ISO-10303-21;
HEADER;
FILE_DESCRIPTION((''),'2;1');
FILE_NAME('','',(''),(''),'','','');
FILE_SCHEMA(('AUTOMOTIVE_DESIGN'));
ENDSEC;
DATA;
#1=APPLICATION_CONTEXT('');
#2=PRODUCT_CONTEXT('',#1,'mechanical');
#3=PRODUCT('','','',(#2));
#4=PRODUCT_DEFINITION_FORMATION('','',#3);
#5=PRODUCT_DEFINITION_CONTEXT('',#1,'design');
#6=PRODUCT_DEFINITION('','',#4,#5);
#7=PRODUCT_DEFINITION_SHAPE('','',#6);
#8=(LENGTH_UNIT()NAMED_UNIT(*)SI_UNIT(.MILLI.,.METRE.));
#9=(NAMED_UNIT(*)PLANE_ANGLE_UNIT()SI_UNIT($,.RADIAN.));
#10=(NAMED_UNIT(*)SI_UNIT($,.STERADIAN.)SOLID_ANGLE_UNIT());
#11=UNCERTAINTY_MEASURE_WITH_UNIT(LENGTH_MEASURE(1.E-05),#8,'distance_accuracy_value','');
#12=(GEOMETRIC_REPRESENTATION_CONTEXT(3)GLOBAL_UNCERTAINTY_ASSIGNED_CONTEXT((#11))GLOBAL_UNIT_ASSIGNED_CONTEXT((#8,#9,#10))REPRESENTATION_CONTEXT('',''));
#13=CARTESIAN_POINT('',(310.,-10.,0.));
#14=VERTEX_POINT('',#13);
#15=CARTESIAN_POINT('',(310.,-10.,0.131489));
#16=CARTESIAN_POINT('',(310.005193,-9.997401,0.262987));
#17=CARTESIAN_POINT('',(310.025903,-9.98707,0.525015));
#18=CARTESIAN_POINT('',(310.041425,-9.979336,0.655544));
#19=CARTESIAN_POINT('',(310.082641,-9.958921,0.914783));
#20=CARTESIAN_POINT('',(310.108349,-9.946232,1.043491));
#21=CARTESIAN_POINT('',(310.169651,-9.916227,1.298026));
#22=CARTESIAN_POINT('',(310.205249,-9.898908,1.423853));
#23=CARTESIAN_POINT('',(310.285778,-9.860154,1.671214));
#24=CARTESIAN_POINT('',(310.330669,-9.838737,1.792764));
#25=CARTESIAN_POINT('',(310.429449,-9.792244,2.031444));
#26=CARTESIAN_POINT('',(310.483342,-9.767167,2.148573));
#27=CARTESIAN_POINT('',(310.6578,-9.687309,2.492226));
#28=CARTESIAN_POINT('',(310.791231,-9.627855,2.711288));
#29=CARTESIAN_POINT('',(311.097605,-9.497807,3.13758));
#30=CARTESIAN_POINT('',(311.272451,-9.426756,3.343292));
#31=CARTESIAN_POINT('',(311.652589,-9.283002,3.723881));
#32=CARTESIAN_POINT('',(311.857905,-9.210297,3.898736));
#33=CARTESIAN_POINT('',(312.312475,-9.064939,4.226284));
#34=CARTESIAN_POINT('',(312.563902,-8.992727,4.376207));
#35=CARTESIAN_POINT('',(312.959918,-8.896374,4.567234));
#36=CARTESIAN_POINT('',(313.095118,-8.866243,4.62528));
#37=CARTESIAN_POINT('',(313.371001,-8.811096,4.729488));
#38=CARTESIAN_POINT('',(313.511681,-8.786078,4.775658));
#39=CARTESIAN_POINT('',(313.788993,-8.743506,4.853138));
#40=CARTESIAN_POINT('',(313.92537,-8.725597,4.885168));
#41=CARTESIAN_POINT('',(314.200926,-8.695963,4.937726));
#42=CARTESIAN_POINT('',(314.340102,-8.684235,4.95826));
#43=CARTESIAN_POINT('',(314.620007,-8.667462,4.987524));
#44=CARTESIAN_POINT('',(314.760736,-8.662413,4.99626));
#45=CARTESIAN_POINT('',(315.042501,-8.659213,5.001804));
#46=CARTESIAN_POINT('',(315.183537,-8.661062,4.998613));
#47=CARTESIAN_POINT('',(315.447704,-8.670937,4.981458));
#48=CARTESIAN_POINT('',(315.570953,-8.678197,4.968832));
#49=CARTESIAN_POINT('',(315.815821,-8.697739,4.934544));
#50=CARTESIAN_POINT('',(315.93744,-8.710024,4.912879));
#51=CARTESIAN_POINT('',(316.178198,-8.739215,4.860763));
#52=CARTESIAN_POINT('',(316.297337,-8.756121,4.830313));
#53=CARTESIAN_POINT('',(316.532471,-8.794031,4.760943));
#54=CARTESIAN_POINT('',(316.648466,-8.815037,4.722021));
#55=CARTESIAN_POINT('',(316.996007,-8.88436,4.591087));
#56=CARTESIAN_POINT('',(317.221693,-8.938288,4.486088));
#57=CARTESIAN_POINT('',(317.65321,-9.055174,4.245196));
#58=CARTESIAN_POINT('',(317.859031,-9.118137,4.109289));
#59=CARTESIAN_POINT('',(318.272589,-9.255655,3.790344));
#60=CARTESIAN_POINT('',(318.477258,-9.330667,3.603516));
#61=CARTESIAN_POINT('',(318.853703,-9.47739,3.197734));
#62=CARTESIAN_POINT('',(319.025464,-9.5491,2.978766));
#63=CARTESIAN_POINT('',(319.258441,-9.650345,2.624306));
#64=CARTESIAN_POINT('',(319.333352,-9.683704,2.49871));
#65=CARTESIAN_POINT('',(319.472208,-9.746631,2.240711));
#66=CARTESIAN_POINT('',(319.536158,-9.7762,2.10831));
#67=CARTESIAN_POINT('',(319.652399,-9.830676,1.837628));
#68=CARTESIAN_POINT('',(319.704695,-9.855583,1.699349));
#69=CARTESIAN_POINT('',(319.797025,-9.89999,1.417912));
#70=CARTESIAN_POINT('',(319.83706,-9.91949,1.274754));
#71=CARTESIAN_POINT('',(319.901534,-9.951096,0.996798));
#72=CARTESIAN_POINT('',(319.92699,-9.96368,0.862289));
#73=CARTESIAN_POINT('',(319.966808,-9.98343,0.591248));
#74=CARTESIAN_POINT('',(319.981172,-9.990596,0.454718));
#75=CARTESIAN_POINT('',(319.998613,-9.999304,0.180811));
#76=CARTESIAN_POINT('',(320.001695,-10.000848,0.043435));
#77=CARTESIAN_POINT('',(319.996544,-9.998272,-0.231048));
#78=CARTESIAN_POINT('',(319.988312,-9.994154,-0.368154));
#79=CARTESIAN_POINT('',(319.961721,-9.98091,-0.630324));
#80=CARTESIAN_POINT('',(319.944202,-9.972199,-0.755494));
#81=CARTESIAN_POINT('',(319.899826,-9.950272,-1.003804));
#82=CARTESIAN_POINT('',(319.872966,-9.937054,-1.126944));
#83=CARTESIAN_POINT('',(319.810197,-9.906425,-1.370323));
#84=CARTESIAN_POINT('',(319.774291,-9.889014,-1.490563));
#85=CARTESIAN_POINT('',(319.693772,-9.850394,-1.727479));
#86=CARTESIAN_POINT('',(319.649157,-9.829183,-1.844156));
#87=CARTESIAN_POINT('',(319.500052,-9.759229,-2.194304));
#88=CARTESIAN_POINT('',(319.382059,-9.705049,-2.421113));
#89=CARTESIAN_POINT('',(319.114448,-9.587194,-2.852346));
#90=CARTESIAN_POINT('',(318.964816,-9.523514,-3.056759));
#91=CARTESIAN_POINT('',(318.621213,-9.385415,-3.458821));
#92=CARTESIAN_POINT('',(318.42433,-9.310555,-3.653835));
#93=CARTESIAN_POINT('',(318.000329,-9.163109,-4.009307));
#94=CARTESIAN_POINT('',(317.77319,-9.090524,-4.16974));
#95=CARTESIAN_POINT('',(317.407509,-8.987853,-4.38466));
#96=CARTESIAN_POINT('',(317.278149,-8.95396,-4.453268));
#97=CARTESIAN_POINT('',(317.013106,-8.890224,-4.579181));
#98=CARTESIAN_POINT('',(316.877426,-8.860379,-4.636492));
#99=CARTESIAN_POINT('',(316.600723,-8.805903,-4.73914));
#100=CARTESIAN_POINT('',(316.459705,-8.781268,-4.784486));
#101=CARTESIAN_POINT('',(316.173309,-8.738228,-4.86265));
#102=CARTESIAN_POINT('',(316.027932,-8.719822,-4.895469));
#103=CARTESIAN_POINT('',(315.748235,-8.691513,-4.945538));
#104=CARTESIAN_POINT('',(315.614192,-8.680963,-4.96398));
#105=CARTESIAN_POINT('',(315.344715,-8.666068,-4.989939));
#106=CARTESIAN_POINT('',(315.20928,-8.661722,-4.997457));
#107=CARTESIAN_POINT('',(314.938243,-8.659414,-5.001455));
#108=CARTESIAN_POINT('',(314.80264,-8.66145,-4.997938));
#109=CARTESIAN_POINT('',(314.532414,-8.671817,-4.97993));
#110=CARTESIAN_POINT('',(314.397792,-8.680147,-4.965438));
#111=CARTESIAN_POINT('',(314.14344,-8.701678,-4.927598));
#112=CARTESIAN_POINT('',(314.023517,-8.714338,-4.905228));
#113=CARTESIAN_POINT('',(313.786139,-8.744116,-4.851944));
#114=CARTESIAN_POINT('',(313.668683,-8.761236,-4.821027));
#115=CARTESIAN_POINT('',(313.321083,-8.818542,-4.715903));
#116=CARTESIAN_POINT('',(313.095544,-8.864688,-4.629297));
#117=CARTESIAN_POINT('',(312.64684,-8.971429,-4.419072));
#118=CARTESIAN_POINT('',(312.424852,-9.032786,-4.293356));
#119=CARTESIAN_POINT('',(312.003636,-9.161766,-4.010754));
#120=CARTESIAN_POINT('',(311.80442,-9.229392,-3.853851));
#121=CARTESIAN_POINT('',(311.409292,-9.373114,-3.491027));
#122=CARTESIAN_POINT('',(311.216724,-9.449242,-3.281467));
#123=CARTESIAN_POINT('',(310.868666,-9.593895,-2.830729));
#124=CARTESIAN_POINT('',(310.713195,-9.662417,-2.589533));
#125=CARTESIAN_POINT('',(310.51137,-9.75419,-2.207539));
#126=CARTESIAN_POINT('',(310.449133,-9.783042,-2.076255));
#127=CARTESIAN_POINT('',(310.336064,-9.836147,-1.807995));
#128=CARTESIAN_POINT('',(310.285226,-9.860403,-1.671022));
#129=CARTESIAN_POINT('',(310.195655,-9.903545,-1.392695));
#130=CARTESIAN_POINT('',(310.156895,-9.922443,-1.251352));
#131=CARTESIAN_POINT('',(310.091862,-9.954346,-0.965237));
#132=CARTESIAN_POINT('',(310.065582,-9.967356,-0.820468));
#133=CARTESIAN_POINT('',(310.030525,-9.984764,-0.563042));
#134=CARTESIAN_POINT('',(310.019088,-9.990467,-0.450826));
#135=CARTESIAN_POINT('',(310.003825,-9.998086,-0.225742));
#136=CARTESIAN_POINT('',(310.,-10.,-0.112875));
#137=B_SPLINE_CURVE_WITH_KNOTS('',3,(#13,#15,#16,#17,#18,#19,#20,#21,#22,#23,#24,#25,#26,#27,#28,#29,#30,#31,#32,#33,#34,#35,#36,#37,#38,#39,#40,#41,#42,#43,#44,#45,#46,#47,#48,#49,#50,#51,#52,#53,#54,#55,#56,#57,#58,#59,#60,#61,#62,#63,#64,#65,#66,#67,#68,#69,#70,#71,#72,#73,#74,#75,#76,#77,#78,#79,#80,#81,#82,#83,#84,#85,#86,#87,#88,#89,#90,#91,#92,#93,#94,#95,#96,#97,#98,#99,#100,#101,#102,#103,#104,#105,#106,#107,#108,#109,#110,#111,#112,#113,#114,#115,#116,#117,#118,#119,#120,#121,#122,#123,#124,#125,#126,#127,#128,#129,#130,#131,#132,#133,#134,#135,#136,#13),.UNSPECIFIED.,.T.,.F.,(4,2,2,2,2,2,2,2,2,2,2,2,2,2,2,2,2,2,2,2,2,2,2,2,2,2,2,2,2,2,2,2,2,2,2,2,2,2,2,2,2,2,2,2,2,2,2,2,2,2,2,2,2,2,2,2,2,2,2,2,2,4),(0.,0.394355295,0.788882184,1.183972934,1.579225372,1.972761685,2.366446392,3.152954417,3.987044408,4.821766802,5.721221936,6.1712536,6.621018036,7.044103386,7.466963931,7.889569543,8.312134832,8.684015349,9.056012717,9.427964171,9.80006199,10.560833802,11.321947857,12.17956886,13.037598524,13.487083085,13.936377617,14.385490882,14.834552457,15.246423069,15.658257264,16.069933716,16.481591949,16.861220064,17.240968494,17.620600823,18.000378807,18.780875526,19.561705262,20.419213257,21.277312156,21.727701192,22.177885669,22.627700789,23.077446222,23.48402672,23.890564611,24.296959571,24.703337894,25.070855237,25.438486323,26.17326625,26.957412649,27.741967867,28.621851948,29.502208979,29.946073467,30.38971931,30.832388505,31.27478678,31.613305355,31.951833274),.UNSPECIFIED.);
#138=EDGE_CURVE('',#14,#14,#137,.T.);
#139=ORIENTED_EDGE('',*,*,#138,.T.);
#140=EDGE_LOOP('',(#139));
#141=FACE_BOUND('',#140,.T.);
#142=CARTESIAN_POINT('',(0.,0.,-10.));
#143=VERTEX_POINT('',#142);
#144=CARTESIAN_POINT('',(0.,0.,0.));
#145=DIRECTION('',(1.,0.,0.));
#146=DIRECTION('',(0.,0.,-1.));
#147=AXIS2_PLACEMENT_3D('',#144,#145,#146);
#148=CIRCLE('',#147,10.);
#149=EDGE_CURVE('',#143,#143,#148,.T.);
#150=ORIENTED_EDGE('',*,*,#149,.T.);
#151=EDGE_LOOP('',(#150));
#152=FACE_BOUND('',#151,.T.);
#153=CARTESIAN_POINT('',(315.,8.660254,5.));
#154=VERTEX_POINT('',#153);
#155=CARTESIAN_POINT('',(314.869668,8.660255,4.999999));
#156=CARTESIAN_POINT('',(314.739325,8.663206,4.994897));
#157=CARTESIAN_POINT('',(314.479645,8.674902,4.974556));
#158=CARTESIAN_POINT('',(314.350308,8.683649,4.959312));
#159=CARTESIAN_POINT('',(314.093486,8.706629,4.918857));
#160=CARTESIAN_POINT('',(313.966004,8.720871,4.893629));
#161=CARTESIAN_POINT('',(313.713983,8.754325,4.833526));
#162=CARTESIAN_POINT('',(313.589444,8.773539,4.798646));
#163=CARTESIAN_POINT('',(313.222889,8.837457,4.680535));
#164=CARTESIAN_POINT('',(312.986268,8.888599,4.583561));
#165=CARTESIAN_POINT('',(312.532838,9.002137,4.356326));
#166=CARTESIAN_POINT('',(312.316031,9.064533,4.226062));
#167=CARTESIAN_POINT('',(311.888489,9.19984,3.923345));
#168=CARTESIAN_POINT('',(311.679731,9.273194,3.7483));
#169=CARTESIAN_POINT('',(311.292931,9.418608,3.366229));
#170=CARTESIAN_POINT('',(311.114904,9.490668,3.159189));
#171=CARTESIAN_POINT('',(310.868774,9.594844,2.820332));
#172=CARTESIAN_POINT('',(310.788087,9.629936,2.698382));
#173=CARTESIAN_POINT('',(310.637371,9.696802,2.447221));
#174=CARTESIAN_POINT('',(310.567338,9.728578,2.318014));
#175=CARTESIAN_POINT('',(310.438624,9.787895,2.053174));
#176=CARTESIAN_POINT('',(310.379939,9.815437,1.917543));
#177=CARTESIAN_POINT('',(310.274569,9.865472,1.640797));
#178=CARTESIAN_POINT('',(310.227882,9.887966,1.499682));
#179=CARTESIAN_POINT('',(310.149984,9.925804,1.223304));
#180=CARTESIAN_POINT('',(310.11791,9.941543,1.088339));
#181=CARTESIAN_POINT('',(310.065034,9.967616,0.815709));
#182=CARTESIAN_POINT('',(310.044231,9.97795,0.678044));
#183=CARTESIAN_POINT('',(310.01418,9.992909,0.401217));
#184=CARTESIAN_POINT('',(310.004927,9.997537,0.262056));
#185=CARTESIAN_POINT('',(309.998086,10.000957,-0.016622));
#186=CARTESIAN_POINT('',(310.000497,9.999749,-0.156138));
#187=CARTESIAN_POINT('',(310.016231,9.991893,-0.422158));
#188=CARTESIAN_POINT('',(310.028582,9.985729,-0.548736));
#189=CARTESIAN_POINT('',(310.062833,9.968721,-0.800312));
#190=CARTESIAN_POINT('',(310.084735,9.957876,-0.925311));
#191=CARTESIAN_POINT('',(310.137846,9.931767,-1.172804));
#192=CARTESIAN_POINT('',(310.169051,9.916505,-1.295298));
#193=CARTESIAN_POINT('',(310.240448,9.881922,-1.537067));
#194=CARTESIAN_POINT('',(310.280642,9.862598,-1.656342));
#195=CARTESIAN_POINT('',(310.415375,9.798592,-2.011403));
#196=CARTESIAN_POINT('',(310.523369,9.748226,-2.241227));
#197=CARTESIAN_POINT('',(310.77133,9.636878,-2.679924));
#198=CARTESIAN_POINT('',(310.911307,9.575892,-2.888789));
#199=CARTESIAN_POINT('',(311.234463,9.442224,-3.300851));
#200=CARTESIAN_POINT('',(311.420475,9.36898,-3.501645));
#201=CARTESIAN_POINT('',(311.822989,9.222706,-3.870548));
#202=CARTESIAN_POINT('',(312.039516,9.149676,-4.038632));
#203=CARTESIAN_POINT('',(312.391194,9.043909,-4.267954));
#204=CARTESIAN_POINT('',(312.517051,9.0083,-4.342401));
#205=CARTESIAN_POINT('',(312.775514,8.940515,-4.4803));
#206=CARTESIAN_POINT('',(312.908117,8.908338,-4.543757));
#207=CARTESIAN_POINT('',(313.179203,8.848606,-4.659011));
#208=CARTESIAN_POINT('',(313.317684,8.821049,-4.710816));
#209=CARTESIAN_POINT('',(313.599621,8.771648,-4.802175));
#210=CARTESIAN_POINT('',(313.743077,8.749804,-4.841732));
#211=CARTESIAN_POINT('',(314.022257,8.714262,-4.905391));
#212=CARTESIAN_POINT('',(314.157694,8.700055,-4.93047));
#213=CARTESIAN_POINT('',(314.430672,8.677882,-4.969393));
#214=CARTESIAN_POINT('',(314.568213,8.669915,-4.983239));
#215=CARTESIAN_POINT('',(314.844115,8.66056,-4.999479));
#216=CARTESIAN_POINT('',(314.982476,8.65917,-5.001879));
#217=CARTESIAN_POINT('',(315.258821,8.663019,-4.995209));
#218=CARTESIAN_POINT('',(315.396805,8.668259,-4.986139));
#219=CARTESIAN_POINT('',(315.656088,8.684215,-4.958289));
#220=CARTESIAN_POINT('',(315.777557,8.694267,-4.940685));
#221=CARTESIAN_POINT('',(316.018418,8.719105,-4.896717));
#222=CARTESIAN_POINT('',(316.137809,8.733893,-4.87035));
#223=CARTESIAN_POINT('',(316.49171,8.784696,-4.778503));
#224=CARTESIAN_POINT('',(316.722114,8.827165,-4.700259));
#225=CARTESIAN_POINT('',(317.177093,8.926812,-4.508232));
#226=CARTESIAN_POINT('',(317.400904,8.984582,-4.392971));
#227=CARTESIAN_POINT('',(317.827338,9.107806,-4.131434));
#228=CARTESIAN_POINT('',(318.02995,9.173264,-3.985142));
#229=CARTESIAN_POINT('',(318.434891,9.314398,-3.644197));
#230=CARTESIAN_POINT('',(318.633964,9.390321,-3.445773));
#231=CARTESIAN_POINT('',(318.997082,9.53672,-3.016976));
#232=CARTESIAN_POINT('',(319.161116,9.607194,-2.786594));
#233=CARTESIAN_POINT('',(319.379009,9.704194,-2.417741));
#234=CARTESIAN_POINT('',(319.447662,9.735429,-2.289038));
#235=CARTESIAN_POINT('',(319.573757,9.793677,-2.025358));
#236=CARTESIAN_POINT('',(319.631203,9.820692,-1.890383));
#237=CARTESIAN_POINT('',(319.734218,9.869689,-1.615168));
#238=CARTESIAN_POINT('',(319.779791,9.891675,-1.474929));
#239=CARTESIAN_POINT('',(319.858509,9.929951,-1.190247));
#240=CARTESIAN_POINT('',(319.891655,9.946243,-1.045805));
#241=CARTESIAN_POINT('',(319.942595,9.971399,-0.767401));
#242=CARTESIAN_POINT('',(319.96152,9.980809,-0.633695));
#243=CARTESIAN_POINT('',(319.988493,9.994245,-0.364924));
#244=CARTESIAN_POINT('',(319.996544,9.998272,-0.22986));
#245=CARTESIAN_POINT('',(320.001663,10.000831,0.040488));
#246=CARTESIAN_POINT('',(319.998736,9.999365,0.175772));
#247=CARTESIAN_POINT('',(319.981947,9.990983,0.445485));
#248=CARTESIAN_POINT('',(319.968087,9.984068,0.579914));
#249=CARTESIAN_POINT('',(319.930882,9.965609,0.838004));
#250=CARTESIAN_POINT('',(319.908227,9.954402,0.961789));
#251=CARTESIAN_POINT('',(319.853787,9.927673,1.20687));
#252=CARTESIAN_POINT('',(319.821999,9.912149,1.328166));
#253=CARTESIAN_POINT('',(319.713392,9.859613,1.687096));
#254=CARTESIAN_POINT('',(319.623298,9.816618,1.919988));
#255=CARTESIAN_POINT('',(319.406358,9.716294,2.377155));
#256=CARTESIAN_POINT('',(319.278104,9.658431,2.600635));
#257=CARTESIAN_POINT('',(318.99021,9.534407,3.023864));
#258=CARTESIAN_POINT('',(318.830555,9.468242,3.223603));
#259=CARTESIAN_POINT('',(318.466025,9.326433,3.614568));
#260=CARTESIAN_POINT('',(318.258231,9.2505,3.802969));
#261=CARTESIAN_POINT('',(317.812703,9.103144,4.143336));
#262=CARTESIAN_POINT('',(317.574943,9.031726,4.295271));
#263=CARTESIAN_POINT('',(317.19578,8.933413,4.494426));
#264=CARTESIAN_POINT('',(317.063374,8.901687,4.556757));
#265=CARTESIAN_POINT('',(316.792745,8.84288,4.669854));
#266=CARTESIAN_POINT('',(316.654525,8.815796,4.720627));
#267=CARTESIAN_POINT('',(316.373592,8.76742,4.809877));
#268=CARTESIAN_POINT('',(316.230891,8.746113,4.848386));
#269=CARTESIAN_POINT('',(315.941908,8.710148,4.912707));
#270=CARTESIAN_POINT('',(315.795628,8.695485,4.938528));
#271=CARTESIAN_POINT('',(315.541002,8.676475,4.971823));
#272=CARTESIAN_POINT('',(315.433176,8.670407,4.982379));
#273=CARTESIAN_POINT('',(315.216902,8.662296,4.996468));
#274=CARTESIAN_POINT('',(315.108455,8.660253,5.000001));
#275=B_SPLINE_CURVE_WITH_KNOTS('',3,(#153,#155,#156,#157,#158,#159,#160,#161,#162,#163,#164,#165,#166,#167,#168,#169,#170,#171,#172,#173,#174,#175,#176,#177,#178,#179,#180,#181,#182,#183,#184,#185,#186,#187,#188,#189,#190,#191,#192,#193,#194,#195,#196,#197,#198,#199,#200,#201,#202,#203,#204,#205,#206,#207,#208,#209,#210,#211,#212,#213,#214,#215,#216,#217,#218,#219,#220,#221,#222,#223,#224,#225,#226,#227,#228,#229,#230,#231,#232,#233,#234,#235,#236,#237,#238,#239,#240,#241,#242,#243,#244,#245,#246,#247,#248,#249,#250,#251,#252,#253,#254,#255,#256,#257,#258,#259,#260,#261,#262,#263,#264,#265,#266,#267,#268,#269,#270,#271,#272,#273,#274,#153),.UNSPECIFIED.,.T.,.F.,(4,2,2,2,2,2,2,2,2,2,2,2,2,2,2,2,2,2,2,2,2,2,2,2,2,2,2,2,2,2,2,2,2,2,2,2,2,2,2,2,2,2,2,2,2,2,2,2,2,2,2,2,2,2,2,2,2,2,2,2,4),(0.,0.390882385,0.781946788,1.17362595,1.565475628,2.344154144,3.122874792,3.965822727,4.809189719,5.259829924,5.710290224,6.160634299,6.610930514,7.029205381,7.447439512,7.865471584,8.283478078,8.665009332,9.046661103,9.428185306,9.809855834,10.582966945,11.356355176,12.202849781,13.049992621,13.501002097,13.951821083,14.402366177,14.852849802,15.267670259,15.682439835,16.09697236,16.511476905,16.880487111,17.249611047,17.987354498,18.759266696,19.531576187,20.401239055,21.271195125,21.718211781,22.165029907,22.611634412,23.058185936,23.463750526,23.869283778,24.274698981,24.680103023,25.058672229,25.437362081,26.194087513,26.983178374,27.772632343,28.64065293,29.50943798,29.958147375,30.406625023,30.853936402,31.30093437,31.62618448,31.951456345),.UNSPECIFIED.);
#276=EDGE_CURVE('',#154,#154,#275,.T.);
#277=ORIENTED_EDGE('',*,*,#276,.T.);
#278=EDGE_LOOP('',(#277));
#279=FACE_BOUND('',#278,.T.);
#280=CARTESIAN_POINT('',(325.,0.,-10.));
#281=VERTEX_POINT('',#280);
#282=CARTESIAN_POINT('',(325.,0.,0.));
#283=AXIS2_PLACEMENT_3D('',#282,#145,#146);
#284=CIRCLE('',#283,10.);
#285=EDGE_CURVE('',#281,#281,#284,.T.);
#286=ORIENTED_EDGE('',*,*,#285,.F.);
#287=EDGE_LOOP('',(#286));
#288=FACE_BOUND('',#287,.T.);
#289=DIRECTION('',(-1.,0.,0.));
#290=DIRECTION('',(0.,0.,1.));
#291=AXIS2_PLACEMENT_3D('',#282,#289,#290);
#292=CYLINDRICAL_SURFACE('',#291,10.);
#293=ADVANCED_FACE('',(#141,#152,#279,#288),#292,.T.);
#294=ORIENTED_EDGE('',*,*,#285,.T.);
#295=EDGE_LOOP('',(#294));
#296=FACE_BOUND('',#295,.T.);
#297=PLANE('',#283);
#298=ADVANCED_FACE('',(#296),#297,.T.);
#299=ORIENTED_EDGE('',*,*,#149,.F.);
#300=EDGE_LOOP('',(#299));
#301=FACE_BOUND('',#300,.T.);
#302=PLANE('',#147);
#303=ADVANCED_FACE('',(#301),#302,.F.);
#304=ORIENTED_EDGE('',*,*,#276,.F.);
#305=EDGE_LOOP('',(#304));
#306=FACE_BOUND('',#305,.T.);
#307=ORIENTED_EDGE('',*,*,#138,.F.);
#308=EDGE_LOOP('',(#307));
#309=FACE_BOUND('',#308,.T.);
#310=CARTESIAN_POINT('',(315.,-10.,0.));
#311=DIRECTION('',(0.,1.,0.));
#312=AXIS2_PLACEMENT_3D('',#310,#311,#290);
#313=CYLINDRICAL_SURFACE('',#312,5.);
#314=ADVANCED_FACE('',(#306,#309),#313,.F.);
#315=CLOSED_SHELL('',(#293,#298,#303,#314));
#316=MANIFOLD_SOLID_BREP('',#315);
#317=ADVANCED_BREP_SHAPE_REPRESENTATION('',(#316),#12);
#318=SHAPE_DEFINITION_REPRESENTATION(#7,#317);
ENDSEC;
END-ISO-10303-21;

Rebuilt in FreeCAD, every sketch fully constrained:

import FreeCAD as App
import Part
import Sketcher

V = App.Vector
Q = App.Units.Quantity

doc = App.newDocument("Part")
body = doc.addObject("PartDesign::Body", "Body")

# Sketch on YZ plane
sketch1 = body.newObject("Sketcher::SketchObject", "Sketch")
sketch1.AttachmentSupport = (doc.getObject("YZ_Plane"), [""])
sketch1.MapMode = "FlatFace"
sketch1.addGeometry(Part.Circle(V(0, 0, 0), V(0, 0, 1), 10), False)
sketch1.addConstraint([
    Sketcher.Constraint("Coincident", 0, 3, -1, 1),
    Sketcher.Constraint("Diameter", 0, Q("20 mm")),
])
pad1 = body.newObject("PartDesign::Pad", "Pad")
pad1.Profile = sketch1
pad1.Length = 325

# Sketch on XZ plane
sketch2 = body.newObject("Sketcher::SketchObject", "Sketch001")
sketch2.AttachmentSupport = (doc.getObject("XZ_Plane"), [""])
sketch2.MapMode = "FlatFace"
sketch2.addGeometry(Part.Circle(V(315, 0, 0), V(0, 0, 1), 5), False)
sketch2.addConstraint([
    Sketcher.Constraint("PointOnObject", 0, 3, -1),
    Sketcher.Constraint("Diameter", 0, Q("10 mm")),
    Sketcher.Constraint("DistanceX", -1, 1, 0, 3, Q("315 mm")),
])
pocket1 = body.newObject("PartDesign::Pocket", "Pocket")
pocket1.Profile = sketch2
pocket1.Type = "ThroughAll"
pocket1.Midplane = True

doc.recompute()
